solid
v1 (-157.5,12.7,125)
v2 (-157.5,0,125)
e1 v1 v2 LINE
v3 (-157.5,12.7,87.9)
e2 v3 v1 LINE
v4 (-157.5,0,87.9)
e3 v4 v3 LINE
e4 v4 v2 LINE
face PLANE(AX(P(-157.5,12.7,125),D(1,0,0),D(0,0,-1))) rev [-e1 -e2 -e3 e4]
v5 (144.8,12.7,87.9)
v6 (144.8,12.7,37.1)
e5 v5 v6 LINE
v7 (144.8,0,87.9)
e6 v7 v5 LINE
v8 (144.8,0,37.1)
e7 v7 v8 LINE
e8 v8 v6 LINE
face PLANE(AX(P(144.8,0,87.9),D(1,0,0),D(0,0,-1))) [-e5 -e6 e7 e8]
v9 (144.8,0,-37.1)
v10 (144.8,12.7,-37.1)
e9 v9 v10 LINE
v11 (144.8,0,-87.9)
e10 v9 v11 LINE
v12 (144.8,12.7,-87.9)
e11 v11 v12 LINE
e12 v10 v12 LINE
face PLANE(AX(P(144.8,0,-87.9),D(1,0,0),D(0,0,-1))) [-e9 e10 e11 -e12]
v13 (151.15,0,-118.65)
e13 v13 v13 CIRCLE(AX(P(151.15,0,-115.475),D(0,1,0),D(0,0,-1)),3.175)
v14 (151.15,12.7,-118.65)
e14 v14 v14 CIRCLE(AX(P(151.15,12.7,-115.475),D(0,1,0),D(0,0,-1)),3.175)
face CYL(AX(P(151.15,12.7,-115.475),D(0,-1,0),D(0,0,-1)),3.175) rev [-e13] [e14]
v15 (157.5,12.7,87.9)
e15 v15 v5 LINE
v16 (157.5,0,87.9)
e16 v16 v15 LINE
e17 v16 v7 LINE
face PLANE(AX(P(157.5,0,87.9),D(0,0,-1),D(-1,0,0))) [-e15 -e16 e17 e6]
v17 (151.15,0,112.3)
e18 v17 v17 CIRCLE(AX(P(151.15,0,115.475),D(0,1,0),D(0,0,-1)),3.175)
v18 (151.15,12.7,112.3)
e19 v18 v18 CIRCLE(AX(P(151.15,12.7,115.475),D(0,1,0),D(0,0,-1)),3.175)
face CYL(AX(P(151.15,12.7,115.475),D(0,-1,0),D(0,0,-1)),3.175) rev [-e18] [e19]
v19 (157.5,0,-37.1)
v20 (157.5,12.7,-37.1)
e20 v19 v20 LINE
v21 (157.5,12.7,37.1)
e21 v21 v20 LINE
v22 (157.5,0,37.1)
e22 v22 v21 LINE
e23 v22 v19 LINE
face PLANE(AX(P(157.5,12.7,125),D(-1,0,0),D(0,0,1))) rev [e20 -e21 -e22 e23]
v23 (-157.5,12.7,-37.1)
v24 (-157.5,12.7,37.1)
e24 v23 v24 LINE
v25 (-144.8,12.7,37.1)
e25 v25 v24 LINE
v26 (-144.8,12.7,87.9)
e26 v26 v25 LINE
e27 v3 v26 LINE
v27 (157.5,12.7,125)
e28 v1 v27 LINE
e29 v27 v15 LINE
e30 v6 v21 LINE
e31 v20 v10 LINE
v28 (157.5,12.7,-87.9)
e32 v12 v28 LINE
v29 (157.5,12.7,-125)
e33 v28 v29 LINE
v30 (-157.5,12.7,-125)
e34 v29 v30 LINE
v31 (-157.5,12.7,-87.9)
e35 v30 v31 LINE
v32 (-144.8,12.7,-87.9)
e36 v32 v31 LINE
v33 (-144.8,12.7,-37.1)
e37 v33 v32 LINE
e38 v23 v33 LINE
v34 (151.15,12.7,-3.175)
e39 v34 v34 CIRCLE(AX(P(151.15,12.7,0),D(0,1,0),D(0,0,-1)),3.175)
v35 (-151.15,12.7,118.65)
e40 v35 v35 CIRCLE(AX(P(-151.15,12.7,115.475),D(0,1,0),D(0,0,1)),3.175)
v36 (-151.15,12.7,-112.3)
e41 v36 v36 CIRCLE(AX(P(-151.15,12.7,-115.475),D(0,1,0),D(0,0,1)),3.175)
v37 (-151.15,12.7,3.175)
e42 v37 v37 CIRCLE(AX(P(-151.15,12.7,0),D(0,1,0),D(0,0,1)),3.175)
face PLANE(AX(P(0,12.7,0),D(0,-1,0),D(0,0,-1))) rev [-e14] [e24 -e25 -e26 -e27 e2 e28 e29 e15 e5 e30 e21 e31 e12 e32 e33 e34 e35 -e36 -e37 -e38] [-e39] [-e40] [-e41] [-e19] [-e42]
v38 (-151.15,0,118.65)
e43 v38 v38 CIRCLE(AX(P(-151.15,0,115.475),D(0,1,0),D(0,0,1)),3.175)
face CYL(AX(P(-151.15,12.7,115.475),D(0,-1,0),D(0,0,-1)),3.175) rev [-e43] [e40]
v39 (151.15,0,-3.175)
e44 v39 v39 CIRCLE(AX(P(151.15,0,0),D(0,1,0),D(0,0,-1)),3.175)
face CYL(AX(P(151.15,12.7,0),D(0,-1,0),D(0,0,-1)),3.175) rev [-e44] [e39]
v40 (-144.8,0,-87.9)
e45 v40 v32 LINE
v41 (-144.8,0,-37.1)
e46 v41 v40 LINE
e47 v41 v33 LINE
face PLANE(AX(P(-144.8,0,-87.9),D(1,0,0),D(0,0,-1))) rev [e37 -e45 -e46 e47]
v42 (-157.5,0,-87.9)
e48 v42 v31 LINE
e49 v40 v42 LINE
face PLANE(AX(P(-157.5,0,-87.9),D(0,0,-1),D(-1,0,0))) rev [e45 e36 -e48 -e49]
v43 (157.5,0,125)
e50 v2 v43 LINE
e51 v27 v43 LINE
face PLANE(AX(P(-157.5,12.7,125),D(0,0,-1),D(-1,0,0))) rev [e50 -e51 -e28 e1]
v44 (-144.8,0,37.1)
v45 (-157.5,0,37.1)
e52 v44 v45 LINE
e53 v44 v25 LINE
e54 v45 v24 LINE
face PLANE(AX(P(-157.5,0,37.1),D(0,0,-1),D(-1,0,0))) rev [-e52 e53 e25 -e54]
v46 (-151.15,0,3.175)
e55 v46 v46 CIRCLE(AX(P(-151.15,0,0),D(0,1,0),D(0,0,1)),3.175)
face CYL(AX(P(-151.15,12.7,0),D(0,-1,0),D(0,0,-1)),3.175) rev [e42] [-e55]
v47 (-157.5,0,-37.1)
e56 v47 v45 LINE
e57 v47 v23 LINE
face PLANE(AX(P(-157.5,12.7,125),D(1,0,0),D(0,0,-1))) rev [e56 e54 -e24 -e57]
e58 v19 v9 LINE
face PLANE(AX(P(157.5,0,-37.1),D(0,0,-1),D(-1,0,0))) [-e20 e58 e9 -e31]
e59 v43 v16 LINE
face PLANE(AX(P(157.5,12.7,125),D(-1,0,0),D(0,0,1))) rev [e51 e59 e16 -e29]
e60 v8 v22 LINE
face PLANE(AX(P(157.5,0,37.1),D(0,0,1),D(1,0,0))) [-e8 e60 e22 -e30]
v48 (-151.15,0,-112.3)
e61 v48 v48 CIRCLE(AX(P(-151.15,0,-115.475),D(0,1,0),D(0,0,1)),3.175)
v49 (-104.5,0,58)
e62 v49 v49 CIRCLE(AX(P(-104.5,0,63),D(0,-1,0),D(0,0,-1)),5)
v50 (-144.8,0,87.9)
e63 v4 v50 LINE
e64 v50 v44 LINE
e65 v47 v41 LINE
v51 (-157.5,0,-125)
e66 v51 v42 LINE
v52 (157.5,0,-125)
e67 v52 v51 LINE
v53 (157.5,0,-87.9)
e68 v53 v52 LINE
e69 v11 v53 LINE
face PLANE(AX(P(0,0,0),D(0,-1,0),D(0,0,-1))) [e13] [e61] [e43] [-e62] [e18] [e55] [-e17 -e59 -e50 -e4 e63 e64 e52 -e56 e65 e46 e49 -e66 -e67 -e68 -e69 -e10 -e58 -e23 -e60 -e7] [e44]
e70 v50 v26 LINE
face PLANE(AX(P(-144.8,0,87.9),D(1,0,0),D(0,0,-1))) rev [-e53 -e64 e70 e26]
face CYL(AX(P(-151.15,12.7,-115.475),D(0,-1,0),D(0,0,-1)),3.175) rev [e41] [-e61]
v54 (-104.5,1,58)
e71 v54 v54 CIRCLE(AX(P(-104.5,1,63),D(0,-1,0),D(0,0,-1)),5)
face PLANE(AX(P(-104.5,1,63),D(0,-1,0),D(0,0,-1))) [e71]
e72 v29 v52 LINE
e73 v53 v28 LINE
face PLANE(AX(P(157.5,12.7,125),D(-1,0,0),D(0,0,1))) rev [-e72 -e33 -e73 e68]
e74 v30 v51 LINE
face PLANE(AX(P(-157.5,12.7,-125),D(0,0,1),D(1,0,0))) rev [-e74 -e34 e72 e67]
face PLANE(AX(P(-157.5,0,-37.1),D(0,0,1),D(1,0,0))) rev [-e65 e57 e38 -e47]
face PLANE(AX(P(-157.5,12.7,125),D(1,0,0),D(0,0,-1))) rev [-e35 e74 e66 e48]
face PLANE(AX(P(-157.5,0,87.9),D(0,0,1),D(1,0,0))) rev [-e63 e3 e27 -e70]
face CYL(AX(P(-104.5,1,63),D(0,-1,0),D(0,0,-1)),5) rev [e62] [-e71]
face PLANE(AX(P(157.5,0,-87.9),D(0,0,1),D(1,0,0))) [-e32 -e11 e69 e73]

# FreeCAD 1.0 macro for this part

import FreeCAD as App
import Part
import Sketcher

V = App.Vector

doc = App.newDocument("Part")
body = doc.addObject("PartDesign::Body", "Body")

sketch1 = body.newObject("Sketcher::SketchObject", "Sketch")
sketch1.AttachmentSupport = (doc.getObject("XZ_Plane"), [""])
sketch1.MapMode = "FlatFace"
sketch1.addGeometry([
    Part.LineSegment(V(-157.5, -125, 0), V(-157.5, 125, 0)),
    Part.LineSegment(V(-157.5, 125, 0), V(157.5, 125, 0)),
    Part.LineSegment(V(157.5, 125, 0), V(157.5, -125, 0)),
    Part.LineSegment(V(157.5, -125, 0), V(-157.5, -125, 0)),
    Part.Circle(V(-151.2, 115.5, 0), V(0, 0, 1), 3.2),
    Part.Circle(V(151.2, 115.5, 0), V(0, 0, 1), 3.2),
    Part.Circle(V(-151.2, 0, 0), V(0, 0, 1), 3.2),
    Part.Circle(V(-151.2, -115.5, 0), V(0, 0, 1), 3.2),
    Part.Circle(V(151.2, 0, 0), V(0, 0, 1), 3.2),
    Part.Circle(V(151.2, -115.5, 0), V(0, 0, 1), 3.2),
], False)
sketch1.addConstraint([
    Sketcher.Constraint("Coincident", 0, 2, 1, 1),
    Sketcher.Constraint("Coincident", 1, 2, 2, 1),
    Sketcher.Constraint("Coincident", 2, 2, 3, 1),
    Sketcher.Constraint("Coincident", 3, 2, 0, 1),
    Sketcher.Constraint("Vertical", 0),
    Sketcher.Constraint("Horizontal", 1),
    Sketcher.Constraint("Vertical", 2),
    Sketcher.Constraint("Horizontal", 3),
    Sketcher.Constraint("Equal", 4, 5),
    Sketcher.Constraint("Equal", 5, 6),
    Sketcher.Constraint("Equal", 6, 7),
    Sketcher.Constraint("Equal", 7, 8),
    Sketcher.Constraint("Equal", 8, 9),
    Sketcher.Constraint("Symmetric", 5, 3, 7, 3, -1, 1),
    Sketcher.Constraint("Symmetric", 6, 3, 8, 3, -1, 1),
    Sketcher.Constraint("Symmetric", 4, 3, 9, 3, -1, 1),
    Sketcher.Constraint("Symmetric", 0, 2, 2, 2, -1, 1),
    Sketcher.Constraint("Symmetric", 4, 3, 5, 3, -2),
    Sketcher.Constraint("PointOnObject", 6, 3, -1),
    Sketcher.Constraint("Vertical", 4, 3, 6, 3),
    Sketcher.Constraint("Diameter", 4, 6.35),
    Sketcher.Constraint("DistanceX", 1, 1, 1, 2, 315.0),
    Sketcher.Constraint("DistanceY", 0, 1, 0, 2, 250.0),
    Sketcher.Constraint("DistanceX", 4, 3, 5, 3, 302.3),
    Sketcher.Constraint("DistanceY", 7, 3, 4, 3, 230.95),
])
pad1 = body.newObject("PartDesign::Pad", "Pad")
pad1.Profile = sketch1
pad1.Length = 12.7
pad1.Reversed = True

sketch2 = body.newObject("Sketcher::SketchObject", "Sketch001")
sketch2.AttachmentSupport = (doc.getObject("XZ_Plane"), [""])
sketch2.MapMode = "FlatFace"
sketch2.AttachmentOffset = App.Placement(V(0, 0, -12.7), App.Rotation())
sketch2.addGeometry([
    Part.LineSegment(V(-158, -88, 0), V(-158, -37, 0)),
    Part.LineSegment(V(-158, -37, 0), V(-145, -37, 0)),
    Part.LineSegment(V(-145, -37, 0), V(-145, -88, 0)),
    Part.LineSegment(V(-145, -88, 0), V(-158, -88, 0)),
    Part.LineSegment(V(-158, 37, 0), V(-158, 88, 0)),
    Part.LineSegment(V(-158, 88, 0), V(-145, 88, 0)),
    Part.LineSegment(V(-145, 88, 0), V(-145, 37, 0)),
    Part.LineSegment(V(-145, 37, 0), V(-158, 37, 0)),
], False)
sketch2.addConstraint([
    Sketcher.Constraint("Coincident", 0, 2, 1, 1),
    Sketcher.Constraint("Coincident", 1, 2, 2, 1),
    Sketcher.Constraint("Coincident", 2, 2, 3, 1),
    Sketcher.Constraint("Coincident", 3, 2, 0, 1),
    Sketcher.Constraint("Coincident", 4, 2, 5, 1),
    Sketcher.Constraint("Coincident", 5, 2, 6, 1),
    Sketcher.Constraint("Coincident", 6, 2, 7, 1),
    Sketcher.Constraint("Coincident", 7, 2, 4, 1),
    Sketcher.Constraint("Vertical", 0),
    Sketcher.Constraint("Horizontal", 1),
    Sketcher.Constraint("Vertical", 2),
    Sketcher.Constraint("Horizontal", 3),
    Sketcher.Constraint("Vertical", 4),
    Sketcher.Constraint("Horizontal", 5),
    Sketcher.Constraint("Vertical", 6),
    Sketcher.Constraint("Horizontal", 7),
    Sketcher.Constraint("Symmetric", 3, 2, 4, 2, -1),
    Sketcher.Constraint("Symmetric", 1, 2, 6, 2, -1),
    Sketcher.Constraint("DistanceX", 1, 1, 1, 2, 12.7),
    Sketcher.Constraint("DistanceY", 0, 1, 0, 2, 50.8),
    Sketcher.Constraint("DistanceY", 0, 2, 4, 2, 125.0),
    Sketcher.Constraint("DistanceX", 0, 2, -1, 1, 157.5),
])
pocket1 = body.newObject("PartDesign::Pocket", "Pocket")
pocket1.Profile = sketch2
pocket1.Type = "ThroughAll"
pocket1.Reversed = True
doc.recompute()

mirrored = body.newObject("PartDesign::Mirrored", "Mirrored")
mirrored.Originals = [pocket1]
mirrored.MirrorPlane = (doc.getObject("YZ_Plane"), [""])
body.Tip = mirrored

sketch3 = body.newObject("Sketcher::SketchObject", "Sketch002")
sketch3.AttachmentSupport = (doc.getObject("XZ_Plane"), [""])
sketch3.MapMode = "FlatFace"
sketch3.addGeometry(Part.Circle(V(-104, 63, 0), V(0, 0, 1), 5), False)
sketch3.addConstraint([
    Sketcher.Constraint("Diameter", 0, 10.0),
    Sketcher.Constraint("DistanceY", -1, 1, 0, 3, 63.0),
    Sketcher.Constraint("DistanceX", 0, 3, -1, 1, 104.5),
])
pocket2 = body.newObject("PartDesign::Pocket", "Pocket001")
pocket2.Profile = sketch3
pocket2.Length = 1

doc.recompute()
